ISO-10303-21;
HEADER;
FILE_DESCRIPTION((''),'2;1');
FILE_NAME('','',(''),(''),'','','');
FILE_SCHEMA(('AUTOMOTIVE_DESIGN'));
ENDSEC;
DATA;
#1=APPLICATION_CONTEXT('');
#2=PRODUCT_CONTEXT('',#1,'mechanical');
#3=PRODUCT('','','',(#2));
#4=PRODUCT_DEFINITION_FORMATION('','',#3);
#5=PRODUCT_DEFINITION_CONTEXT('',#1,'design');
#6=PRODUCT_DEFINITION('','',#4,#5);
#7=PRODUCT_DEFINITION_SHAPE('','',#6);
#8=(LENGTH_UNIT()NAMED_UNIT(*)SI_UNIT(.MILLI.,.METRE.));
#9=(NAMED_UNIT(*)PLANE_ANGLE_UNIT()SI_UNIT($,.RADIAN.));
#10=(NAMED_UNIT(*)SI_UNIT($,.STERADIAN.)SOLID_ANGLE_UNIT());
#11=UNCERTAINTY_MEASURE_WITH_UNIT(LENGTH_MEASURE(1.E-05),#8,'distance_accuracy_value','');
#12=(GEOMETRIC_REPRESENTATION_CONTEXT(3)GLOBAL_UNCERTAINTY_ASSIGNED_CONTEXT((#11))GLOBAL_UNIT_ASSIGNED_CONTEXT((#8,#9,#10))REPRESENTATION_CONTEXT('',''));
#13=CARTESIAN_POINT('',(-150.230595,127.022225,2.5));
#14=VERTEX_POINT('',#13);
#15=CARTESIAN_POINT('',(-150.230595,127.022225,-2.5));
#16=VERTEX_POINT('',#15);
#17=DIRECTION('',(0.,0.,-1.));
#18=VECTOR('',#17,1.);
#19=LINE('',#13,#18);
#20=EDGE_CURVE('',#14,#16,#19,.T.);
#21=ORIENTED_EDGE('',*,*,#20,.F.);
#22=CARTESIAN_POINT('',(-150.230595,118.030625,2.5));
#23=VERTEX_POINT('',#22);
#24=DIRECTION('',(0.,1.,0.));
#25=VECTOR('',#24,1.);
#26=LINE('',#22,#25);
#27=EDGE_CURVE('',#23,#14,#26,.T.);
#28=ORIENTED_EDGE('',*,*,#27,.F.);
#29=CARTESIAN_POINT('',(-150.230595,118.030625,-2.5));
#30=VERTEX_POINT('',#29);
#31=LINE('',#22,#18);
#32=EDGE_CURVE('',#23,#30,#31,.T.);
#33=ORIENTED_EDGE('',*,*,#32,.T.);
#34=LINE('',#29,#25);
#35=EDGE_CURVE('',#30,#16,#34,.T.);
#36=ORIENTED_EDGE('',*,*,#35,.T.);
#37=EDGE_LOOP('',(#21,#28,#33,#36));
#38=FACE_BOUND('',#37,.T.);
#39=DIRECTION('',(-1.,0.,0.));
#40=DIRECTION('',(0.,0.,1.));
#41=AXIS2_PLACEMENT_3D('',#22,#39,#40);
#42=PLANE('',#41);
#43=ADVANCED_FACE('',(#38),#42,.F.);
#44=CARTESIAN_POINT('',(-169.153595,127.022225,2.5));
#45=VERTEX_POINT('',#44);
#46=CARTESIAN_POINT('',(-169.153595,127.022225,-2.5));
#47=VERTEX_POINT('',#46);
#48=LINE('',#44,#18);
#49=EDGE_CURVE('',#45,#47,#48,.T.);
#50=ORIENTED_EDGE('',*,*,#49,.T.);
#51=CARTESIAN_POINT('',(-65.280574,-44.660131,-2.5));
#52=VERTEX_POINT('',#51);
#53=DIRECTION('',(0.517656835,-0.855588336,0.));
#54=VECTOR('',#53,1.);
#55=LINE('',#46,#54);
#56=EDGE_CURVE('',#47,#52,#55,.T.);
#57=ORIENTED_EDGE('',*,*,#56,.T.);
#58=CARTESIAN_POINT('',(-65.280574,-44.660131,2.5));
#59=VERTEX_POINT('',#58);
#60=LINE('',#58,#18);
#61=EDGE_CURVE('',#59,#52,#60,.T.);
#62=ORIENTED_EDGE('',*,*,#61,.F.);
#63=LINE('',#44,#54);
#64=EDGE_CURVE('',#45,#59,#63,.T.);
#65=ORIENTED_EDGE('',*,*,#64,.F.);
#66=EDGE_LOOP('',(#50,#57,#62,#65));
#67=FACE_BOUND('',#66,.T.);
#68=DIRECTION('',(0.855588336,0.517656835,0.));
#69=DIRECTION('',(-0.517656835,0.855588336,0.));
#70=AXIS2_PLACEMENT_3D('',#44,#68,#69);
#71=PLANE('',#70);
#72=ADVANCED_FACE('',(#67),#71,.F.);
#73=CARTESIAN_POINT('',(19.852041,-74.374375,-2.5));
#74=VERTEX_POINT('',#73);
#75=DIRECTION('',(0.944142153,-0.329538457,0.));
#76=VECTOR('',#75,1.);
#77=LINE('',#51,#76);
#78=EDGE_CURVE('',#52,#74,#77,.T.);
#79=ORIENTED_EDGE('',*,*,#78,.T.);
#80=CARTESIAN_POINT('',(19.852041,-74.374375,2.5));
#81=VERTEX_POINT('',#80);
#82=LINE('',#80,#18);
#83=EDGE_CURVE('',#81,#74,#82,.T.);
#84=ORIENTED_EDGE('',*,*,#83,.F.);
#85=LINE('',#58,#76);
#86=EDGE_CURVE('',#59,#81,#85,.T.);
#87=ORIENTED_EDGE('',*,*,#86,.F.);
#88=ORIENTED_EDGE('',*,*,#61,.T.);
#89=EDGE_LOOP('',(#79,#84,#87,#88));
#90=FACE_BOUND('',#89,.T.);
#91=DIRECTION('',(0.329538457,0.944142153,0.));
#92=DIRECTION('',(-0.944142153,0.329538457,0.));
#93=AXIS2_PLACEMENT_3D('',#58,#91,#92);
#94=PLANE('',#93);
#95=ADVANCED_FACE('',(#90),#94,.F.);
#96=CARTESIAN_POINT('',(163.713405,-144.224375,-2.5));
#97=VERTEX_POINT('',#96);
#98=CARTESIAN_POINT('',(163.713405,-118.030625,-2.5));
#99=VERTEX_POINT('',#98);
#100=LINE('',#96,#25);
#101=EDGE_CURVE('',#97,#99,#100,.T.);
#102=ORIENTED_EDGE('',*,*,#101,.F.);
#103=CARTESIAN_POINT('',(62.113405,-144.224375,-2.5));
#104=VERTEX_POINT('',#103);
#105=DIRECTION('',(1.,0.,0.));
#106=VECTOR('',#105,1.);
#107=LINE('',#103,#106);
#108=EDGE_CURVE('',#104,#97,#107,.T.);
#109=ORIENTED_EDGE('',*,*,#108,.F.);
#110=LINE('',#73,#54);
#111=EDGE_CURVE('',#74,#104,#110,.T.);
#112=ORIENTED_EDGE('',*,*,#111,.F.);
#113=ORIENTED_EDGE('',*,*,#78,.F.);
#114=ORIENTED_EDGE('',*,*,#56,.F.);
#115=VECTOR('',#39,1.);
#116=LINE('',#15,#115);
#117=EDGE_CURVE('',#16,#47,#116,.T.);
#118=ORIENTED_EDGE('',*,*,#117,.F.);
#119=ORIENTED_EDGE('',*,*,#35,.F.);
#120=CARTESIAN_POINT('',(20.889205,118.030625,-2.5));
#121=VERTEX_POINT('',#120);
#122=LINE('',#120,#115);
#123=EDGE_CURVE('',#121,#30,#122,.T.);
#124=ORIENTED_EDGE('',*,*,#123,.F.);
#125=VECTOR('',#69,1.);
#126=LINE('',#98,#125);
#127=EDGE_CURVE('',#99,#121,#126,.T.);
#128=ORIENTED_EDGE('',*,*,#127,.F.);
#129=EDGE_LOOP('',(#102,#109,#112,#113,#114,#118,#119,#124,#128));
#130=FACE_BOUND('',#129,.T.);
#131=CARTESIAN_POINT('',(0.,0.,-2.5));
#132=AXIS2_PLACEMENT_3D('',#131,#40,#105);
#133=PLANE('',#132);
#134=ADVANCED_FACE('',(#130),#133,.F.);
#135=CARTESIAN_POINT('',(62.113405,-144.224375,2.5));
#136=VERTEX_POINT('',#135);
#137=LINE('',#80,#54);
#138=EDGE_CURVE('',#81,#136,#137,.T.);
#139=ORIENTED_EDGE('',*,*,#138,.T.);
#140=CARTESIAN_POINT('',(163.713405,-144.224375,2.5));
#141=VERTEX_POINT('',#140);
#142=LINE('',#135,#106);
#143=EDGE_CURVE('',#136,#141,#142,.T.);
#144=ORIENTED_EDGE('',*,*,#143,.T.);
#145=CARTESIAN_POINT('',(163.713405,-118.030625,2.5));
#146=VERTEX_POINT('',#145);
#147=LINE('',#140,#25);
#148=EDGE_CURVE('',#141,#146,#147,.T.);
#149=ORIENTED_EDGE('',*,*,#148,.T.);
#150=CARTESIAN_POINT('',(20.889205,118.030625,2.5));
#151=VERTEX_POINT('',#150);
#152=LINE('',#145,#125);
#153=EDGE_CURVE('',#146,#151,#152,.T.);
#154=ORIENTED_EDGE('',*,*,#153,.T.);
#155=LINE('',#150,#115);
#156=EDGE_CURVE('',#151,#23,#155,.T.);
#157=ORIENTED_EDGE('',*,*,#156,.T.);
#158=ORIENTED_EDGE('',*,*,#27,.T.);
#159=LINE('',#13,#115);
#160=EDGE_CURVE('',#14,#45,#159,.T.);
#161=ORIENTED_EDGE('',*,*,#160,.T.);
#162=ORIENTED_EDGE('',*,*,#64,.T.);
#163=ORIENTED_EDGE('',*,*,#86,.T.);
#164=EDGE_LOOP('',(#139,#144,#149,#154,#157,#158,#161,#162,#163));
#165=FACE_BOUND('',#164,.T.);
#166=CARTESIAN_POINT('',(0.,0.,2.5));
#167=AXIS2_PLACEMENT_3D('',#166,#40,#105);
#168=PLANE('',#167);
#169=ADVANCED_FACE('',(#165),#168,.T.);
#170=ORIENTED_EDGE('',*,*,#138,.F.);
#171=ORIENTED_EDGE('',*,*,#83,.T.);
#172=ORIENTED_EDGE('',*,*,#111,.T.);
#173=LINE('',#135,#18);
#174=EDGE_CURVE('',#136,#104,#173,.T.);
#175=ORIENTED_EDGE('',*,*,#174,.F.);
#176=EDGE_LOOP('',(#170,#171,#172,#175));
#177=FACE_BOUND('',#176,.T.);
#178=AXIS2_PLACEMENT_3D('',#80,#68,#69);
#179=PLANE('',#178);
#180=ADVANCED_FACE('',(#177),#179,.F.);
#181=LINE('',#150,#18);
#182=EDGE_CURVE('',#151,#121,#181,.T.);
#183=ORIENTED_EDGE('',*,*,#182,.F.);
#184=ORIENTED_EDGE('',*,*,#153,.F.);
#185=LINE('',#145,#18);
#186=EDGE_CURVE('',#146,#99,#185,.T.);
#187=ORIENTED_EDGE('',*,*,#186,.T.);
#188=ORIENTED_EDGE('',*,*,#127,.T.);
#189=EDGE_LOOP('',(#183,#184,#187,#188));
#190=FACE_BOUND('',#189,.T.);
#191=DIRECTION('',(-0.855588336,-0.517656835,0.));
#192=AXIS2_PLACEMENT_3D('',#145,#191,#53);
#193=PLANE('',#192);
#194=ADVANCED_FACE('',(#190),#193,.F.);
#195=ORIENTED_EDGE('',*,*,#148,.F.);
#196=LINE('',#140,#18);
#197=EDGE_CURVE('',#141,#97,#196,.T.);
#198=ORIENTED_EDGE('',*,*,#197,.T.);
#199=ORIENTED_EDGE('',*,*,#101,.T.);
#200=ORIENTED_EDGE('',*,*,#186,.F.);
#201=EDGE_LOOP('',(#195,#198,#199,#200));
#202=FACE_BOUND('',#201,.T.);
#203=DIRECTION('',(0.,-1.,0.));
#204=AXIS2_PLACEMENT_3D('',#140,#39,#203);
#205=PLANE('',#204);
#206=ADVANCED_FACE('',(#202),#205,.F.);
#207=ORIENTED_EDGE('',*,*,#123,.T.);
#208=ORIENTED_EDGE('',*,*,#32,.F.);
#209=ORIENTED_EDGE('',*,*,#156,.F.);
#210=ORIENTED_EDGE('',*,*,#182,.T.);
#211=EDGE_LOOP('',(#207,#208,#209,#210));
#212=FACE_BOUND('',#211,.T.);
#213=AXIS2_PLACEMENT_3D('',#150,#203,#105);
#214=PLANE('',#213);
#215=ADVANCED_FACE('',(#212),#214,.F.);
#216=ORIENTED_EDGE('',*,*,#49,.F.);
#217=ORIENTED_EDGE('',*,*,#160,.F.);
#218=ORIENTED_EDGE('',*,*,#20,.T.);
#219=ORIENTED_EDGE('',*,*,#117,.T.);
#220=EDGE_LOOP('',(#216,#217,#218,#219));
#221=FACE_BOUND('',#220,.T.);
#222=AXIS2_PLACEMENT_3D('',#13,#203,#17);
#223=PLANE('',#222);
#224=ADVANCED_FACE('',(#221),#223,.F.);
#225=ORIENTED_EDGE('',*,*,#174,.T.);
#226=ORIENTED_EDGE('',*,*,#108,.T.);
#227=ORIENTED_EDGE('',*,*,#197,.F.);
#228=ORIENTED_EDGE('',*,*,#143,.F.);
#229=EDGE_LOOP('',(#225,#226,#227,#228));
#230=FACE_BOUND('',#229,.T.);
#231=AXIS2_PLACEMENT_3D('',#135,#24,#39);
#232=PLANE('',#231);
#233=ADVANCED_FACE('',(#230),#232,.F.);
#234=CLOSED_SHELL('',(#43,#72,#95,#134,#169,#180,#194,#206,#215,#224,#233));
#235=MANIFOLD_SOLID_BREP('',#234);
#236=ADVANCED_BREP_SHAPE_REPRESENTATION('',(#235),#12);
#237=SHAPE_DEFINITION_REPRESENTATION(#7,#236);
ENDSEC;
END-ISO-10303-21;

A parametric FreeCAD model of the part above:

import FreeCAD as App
import Part
import Sketcher
from FreeCAD import Vector
Q = App.Units.Quantity

doc = App.newDocument("Part")
params = doc.addObject("Spreadsheet::Sheet", "Params")
for row, (alias, value) in enumerate([
    ("sketch1_width", "4 in"),
    ("sketch1_length", "7.9 in"),
    ("sketch1_width2", "6.737 in"),
    ("sketch1_width3", "0.745 in"),
    ("sketch1_height", "1.03125 in"),
    ("pad1_length", "5 mm"),
], start=1):
    params.set(f"A{row}", alias)
    params.set(f"B{row}", "=" + value)
    params.setAlias(f"B{row}", alias)

body = doc.addObject("PartDesign::Body", "Body")

# Sketch on XY plane
sketch1 = doc.addObject("Sketcher::SketchObject", "Sketch")
body.addObject(sketch1)
sketch1.AttachmentSupport = (doc.XY_Plane, [""])
sketch1.MapMode = "FlatFace"
sketch1.addGeometry(Part.LineSegment(Vector(164, -144, 0), Vector(164, -118, 0)), False)
sketch1.addGeometry(Part.LineSegment(Vector(164, -118, 0), Vector(21, 118, 0)), False)
sketch1.addGeometry(Part.LineSegment(Vector(21, 118, 0), Vector(-150, 118, 0)), False)
sketch1.addGeometry(Part.LineSegment(Vector(-150, 118, 0), Vector(-150, 127, 0)), False)
sketch1.addGeometry(Part.LineSegment(Vector(-150, 127, 0), Vector(-169, 127, 0)), False)
sketch1.addGeometry(Part.LineSegment(Vector(-169, 127, 0), Vector(-65, -45, 0)), False)
sketch1.addGeometry(Part.LineSegment(Vector(-65, -45, 0), Vector(20, -74, 0)), False)
sketch1.addGeometry(Part.LineSegment(Vector(20, -74, 0), Vector(62, -144, 0)), False)
sketch1.addGeometry(Part.LineSegment(Vector(62, -144, 0), Vector(164, -144, 0)), False)
sketch1.addConstraint(Sketcher.Constraint("Coincident", 0, 2, 1, 1))
sketch1.addConstraint(Sketcher.Constraint("Coincident", 1, 2, 2, 1))
sketch1.addConstraint(Sketcher.Constraint("Coincident", 2, 2, 3, 1))
sketch1.addConstraint(Sketcher.Constraint("Coincident", 3, 2, 4, 1))
sketch1.addConstraint(Sketcher.Constraint("Coincident", 4, 2, 5, 1))
sketch1.addConstraint(Sketcher.Constraint("Coincident", 5, 2, 6, 1))
sketch1.addConstraint(Sketcher.Constraint("Coincident", 6, 2, 7, 1))
sketch1.addConstraint(Sketcher.Constraint("Coincident", 7, 2, 8, 1))
sketch1.addConstraint(Sketcher.Constraint("Coincident", 8, 2, 0, 1))
sketch1.addConstraint(Sketcher.Constraint("Vertical", 0))
sketch1.addConstraint(Sketcher.Constraint("Horizontal", 2))
sketch1.addConstraint(Sketcher.Constraint("Vertical", 3))
sketch1.addConstraint(Sketcher.Constraint("Horizontal", 4))
sketch1.addConstraint(Sketcher.Constraint("Horizontal", 8))
sketch1.addConstraint(Sketcher.Constraint("Parallel", 1, 5))
sketch1.addConstraint(Sketcher.Constraint("Parallel", 5, 7))
sketch1.addConstraint(Sketcher.Constraint("DistanceX", 8, 1, 8, 2, Q("4 in")))
sketch1.addConstraint(Sketcher.Constraint("Distance", 5, Q("7.9 in")))
sketch1.addConstraint(Sketcher.Constraint("DistanceX", 2, 2, 2, 1, Q("6.737 in")))
sketch1.addConstraint(Sketcher.Constraint("DistanceX", 4, 2, 4, 1, Q("0.745 in")))
sketch1.addConstraint(Sketcher.Constraint("DistanceY", 0, 1, 0, 2, Q("1.03125 in")))
sketch1.addConstraint(Sketcher.Constraint("DistanceY", 3, 1, 3, 2, Q("0.354 in")))
sketch1.addConstraint(Sketcher.Constraint("DistanceX", 2, 2, 0, 2, Q("12.36 in")))
sketch1.addConstraint(Sketcher.Constraint("DistanceY", 7, 2, 6, 2, Q("2.75 in")))
sketch1.addConstraint(Sketcher.Constraint("DistanceY", 6, 2, 1, 2, Q("7.575 in")))
sketch1.addConstraint(Sketcher.Constraint("DistanceY", 5, 2, -1, 1, 44.660131))
sketch1.addConstraint(Sketcher.Constraint("DistanceX", -1, 1, 6, 2, 19.852041))
sketch1.setExpression("Constraints[16]", "Params.sketch1_width")
sketch1.setExpression("Constraints[17]", "Params.sketch1_length")
sketch1.setExpression("Constraints[18]", "Params.sketch1_width2")
sketch1.setExpression("Constraints[19]", "Params.sketch1_width3")
sketch1.setExpression("Constraints[20]", "Params.sketch1_height")
pad1 = doc.addObject("PartDesign::Pad", "Pad")
body.addObject(pad1)
pad1.Profile = sketch1
pad1.setExpression("Length", "Params.pad1_length")
pad1.Midplane = True

doc.recompute()
